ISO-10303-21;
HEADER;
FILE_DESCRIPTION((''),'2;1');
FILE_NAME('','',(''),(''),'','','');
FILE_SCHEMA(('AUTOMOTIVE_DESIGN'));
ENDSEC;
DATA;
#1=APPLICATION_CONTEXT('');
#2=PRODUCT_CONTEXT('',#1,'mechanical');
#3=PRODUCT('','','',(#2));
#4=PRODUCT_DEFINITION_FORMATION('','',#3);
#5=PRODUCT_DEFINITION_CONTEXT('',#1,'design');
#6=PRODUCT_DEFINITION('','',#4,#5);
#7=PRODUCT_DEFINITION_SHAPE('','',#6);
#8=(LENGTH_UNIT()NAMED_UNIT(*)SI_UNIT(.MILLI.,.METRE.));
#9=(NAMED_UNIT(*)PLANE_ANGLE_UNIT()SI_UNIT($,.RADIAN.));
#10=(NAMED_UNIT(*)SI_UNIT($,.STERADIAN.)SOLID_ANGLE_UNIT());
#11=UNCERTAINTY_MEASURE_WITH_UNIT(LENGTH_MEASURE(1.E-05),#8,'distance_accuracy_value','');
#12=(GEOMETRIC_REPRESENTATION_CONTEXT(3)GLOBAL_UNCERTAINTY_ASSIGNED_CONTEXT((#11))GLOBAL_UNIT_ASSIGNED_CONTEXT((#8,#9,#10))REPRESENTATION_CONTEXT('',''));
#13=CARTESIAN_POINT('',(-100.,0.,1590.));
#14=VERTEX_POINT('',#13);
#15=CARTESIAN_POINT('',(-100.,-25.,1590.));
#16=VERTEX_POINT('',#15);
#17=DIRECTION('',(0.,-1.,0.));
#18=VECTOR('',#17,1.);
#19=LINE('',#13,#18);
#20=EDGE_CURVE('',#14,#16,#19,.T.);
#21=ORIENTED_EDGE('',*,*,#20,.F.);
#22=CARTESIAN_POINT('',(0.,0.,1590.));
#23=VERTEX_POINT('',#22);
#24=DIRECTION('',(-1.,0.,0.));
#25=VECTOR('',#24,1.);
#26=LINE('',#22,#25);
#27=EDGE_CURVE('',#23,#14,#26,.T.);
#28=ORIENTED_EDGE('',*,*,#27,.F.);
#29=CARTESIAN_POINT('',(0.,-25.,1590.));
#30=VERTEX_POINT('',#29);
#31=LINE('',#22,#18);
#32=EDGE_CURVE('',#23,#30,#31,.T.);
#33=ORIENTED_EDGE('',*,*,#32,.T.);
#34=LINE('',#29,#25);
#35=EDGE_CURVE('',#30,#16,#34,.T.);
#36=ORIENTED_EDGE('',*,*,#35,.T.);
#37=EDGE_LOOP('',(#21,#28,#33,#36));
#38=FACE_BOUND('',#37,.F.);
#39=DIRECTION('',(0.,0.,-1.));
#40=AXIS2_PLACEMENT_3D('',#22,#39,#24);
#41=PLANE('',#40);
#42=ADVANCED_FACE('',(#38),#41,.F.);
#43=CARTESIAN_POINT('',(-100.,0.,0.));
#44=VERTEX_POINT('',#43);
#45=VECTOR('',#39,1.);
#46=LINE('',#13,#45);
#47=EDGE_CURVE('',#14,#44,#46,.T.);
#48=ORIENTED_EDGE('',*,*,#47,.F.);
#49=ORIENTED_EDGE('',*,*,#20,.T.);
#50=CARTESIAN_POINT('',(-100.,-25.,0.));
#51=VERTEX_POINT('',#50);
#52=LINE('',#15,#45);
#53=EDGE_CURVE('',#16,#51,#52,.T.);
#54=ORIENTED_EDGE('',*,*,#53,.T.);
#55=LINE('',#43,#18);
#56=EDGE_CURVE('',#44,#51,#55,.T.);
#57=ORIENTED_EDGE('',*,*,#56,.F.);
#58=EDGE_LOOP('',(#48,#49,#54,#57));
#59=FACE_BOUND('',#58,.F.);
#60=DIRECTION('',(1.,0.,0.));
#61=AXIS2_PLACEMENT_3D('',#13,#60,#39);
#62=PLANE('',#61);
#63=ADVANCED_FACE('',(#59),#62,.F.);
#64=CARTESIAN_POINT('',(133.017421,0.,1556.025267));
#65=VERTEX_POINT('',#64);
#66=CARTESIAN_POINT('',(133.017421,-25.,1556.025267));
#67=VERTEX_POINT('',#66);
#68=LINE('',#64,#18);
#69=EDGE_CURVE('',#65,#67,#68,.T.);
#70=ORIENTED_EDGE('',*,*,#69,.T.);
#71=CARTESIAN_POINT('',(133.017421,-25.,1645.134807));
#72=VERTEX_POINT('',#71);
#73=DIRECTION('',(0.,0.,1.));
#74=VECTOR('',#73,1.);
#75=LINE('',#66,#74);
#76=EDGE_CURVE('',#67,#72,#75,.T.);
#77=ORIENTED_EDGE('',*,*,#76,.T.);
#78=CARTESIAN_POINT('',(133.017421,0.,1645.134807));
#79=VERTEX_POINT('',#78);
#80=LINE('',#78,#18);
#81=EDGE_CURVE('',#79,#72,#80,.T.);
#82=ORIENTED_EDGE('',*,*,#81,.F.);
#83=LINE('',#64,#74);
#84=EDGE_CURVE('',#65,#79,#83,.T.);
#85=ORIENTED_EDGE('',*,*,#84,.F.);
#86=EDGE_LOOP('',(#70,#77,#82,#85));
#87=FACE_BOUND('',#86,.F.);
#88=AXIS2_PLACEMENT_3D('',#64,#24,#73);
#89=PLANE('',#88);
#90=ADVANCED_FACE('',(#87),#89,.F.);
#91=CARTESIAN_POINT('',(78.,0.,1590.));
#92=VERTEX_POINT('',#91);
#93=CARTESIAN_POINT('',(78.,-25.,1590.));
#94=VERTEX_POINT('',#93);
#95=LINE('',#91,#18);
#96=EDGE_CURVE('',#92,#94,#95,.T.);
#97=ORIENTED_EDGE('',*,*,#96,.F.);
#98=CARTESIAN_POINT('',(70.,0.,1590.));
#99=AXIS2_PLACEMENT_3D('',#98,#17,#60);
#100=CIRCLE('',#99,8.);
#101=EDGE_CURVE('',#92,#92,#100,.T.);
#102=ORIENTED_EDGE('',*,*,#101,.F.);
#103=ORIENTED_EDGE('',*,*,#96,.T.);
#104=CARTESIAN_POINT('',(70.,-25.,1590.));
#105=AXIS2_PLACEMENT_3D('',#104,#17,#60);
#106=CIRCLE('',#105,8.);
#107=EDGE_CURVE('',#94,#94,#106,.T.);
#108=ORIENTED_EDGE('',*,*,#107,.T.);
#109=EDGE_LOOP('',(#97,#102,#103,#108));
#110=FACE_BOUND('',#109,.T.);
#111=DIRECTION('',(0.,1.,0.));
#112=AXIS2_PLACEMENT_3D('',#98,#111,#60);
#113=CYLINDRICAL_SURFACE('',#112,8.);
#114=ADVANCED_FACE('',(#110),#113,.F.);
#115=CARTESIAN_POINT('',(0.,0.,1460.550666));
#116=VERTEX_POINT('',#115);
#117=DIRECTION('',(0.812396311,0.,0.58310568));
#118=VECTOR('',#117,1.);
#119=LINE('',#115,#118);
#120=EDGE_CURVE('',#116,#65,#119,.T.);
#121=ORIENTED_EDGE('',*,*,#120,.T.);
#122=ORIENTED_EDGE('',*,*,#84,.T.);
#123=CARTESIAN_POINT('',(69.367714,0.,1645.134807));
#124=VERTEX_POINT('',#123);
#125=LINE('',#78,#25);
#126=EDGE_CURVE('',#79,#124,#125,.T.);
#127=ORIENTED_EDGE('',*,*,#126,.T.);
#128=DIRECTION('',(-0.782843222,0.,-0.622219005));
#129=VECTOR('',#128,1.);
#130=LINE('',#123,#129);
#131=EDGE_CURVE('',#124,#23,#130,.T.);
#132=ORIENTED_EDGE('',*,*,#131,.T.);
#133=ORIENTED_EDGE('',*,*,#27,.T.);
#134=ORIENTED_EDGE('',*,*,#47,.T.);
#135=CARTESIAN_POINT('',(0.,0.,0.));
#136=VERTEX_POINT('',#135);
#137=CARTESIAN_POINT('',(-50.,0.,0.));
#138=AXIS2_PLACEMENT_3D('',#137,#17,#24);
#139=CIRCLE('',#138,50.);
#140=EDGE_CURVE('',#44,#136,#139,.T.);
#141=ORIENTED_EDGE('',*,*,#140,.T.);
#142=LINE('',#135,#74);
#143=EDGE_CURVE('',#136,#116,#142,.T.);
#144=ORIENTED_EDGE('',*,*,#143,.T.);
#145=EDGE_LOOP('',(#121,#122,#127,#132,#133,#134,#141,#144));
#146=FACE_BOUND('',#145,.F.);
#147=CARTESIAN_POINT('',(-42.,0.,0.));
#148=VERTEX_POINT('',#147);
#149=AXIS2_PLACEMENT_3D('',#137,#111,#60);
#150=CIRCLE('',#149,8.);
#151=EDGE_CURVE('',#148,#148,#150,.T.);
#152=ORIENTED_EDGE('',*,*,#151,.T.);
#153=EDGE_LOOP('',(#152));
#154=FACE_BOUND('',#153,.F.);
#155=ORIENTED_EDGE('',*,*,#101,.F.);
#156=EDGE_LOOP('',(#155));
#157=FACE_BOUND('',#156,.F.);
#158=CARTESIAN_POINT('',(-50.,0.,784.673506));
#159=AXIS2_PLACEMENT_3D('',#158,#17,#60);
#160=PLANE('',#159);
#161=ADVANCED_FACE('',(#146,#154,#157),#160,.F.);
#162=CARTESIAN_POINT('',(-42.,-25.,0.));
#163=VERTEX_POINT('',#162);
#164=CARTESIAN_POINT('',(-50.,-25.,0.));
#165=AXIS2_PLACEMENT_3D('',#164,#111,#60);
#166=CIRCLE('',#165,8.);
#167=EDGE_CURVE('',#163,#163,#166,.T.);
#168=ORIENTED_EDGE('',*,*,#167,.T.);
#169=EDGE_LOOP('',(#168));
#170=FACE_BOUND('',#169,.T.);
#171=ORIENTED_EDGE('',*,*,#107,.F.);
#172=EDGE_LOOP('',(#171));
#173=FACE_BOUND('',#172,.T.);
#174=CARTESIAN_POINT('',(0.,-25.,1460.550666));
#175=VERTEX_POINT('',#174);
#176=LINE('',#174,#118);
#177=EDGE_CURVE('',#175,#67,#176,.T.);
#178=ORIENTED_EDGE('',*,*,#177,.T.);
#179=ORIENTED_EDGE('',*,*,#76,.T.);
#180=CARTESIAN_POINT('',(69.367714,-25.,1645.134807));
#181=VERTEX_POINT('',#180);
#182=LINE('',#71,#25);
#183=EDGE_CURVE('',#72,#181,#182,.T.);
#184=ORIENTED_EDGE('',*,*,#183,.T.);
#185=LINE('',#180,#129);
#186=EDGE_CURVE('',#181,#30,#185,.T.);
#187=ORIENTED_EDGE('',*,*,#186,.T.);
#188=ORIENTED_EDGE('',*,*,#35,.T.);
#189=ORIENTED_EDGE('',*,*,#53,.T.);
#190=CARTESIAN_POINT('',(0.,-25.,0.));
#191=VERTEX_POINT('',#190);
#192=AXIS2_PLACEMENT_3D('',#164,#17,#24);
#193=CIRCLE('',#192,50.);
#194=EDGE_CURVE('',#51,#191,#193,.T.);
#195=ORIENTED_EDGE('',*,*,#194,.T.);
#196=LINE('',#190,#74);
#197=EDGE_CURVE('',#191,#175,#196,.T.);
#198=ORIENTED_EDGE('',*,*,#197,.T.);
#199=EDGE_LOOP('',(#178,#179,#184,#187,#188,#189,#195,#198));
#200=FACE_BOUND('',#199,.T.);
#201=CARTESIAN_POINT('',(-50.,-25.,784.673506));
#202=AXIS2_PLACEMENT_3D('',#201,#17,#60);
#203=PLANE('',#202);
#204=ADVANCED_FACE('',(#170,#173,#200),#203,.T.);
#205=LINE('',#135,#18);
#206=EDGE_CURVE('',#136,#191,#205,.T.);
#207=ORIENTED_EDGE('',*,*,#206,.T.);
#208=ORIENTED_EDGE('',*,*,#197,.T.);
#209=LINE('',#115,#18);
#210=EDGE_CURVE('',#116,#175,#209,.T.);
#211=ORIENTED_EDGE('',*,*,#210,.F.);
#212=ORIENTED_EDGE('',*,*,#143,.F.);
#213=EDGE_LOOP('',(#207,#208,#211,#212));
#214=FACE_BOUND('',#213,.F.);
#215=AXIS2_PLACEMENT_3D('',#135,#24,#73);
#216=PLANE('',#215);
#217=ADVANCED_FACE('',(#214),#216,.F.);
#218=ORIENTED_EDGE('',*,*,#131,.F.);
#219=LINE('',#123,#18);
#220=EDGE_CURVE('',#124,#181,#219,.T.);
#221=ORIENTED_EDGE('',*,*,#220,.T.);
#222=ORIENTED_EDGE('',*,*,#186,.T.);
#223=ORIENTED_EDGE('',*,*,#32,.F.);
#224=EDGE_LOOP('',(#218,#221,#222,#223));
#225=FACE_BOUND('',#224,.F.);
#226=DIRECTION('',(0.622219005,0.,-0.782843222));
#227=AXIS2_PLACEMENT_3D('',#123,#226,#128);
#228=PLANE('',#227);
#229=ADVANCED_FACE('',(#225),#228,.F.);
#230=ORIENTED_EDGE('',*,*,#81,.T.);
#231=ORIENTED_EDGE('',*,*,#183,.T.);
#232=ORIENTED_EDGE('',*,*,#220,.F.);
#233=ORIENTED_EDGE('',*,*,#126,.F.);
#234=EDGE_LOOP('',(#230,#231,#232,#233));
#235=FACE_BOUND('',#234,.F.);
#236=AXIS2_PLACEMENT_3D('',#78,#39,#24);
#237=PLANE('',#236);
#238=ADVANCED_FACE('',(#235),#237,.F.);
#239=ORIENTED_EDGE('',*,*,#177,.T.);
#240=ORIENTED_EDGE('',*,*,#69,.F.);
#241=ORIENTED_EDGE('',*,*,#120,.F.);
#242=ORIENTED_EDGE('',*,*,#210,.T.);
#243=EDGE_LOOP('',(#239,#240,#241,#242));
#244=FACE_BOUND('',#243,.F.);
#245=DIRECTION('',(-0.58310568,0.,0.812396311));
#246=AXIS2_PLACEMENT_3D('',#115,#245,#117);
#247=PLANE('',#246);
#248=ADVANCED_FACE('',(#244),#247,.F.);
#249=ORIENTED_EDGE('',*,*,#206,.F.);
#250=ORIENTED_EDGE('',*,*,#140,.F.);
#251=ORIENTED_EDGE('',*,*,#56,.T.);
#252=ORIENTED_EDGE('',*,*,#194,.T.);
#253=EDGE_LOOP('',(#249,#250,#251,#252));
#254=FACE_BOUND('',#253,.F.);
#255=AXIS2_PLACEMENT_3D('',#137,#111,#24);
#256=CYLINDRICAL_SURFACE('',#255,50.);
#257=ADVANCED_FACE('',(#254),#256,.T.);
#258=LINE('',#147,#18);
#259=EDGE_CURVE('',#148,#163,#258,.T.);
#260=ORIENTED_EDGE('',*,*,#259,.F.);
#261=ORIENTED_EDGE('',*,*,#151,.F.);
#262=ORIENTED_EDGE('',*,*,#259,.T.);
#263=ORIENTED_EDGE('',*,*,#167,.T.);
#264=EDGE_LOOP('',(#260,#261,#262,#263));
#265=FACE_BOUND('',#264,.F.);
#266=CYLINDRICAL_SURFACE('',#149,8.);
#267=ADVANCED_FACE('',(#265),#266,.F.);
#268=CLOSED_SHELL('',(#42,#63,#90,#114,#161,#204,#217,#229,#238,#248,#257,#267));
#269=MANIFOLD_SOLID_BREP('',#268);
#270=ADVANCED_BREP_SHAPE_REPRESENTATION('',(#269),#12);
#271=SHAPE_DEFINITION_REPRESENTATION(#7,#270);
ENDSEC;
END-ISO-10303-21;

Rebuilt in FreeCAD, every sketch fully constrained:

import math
import FreeCAD as App
import Part
import Sketcher

doc = App.newDocument("Part")
body = doc.addObject("PartDesign::Body", "Body")

# Sketch on XZ plane
sketch1 = body.newObject("Sketcher::SketchObject", "Sketch")
sketch1.AttachmentSupport = (doc.getObject("XZ_Plane"), [""])
sketch1.MapMode = "FlatFace"
sketch1.addGeometry([
    Part.LineSegment(App.Vector(-100, 1590, 0), App.Vector(-100, 0, 0)),  # 0
    Part.ArcOfCircle(Part.Circle(App.Vector(-50, 0, 0), App.Vector(0, 0, 1), 50), math.radians(180), math.radians(360)),  # 1
    Part.LineSegment(App.Vector(0, 0, 0), App.Vector(0, 1461, 0)),  # 2
    Part.LineSegment(App.Vector(0, 1461, 0), App.Vector(133, 1556, 0)),  # 3
    Part.LineSegment(App.Vector(133, 1556, 0), App.Vector(133, 1645, 0)),  # 4
    Part.LineSegment(App.Vector(133, 1645, 0), App.Vector(69, 1645, 0)),  # 5
    Part.LineSegment(App.Vector(69, 1645, 0), App.Vector(0, 1590, 0)),  # 6
    Part.LineSegment(App.Vector(0, 1590, 0), App.Vector(-100, 1590, 0)),  # 7
    Part.Circle(App.Vector(-50, 0, 0), App.Vector(0, 0, 1), 8),  # 8
    Part.Circle(App.Vector(70, 1590, 0), App.Vector(0, 0, 1), 8),  # 9
], False)
sketch1.addConstraint([
    Sketcher.Constraint("Tangent", 0, 2, 1, 1),
    Sketcher.Constraint("Tangent", 1, 2, 2, 1),
    Sketcher.Constraint("Coincident", 2, 2, 3, 1),
    Sketcher.Constraint("Coincident", 3, 2, 4, 1),
    Sketcher.Constraint("Coincident", 4, 2, 5, 1),
    Sketcher.Constraint("Coincident", 5, 2, 6, 1),
    Sketcher.Constraint("Coincident", 6, 2, 7, 1),
    Sketcher.Constraint("Coincident", 7, 2, 0, 1),
    Sketcher.Constraint("Vertical", 0),
    Sketcher.Constraint("Vertical", 2),
    Sketcher.Constraint("Vertical", 4),
    Sketcher.Constraint("Horizontal", 5),
    Sketcher.Constraint("Horizontal", 7),
    Sketcher.Constraint("Coincident", 1, 2, -1, 1),
    Sketcher.Constraint("Coincident", 8, 3, 1, 3),
    Sketcher.Constraint("Equal", 8, 9),
    Sketcher.Constraint("PointOnObject", 6, 2, -2),
    Sketcher.Constraint("Horizontal", 9, 3, 6, 2),
    Sketcher.Constraint("Diameter", 8, 16.0),
    Sketcher.Constraint("Radius", 1, 50.0),
    Sketcher.Constraint("DistanceY", 0, 2, 0, 1, 1590.0),
    Sketcher.Constraint("DistanceX", -1, 1, 9, 3, 70.0),
    Sketcher.Constraint("DistanceY", 4, 1, 4, 2, 89.10954),
    Sketcher.Constraint("DistanceY", 2, 2, 3, 2, 95.474601),
    Sketcher.Constraint("Distance", 6, 88.609969),
    Sketcher.Constraint("DistanceX", 5, 2, 5, 1, 63.649707),
    Sketcher.Constraint("DistanceY", 2, 1, 2, 2, 1460.550666),
])
pad1 = body.newObject("PartDesign::Pad", "Pad")
pad1.Profile = sketch1
pad1.Length = 25

doc.recompute()
